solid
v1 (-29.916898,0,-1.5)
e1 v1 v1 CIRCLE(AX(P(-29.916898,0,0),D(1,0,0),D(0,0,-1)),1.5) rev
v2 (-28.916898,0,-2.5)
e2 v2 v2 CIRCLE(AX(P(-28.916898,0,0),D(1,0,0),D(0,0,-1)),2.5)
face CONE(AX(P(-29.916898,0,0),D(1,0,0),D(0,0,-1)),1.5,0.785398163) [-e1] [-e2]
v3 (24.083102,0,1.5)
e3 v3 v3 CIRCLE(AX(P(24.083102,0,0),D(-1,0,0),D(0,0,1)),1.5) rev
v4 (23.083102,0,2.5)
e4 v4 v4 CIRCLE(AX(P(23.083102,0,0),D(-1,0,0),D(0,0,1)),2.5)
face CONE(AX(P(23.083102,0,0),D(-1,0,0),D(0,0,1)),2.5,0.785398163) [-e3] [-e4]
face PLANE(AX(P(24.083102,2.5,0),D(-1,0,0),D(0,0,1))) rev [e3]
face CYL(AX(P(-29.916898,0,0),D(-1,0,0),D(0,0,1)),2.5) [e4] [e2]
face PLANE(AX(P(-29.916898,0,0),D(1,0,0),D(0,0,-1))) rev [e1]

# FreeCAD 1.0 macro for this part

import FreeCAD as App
import Part
import Sketcher
Q = App.Units.Quantity


def edges_at(feature, points):
    """Names of the edges that pass closest to the given points."""
    edges = feature.Shape.Edges
    near = lambda p: min(range(len(edges)), key=lambda i: edges[i].distToShape(Part.Vertex(*p))[0])
    return sorted({f"Edge{near(p) + 1}" for p in points})


def add_polygon(sketch, points):
    """Adds a closed chain of lines whose ends are joined by coincident constraints."""
    first, n = sketch.GeometryCount, len(points)
    for a, b in zip(points, points[1:] + points[:1]):
        sketch.addGeometry(Part.LineSegment(App.Vector(*a, 0), App.Vector(*b, 0)), False)
    for i in range(n):
        sketch.addConstraint(Sketcher.Constraint("Coincident", first + i, 2, first + (i + 1) % n, 1))

doc = App.newDocument("Part")
body = doc.addObject("PartDesign::Body", "Body")

sketch1 = doc.addObject("Sketcher::SketchObject", "Sketch")
body.addObject(sketch1)
sketch1.AttachmentSupport = (doc.XY_Plane, [""])
sketch1.MapMode = "FlatFace"
add_polygon(sketch1, [(-29.9, 2.5), (-29.9, 0), (24.1, 0), (24.1, 2.5)])
sketch1.addConstraint([
    Sketcher.Constraint("Vertical", 0),
    Sketcher.Constraint("Horizontal", 1),
    Sketcher.Constraint("Vertical", 2),
    Sketcher.Constraint("Horizontal", 3),
    Sketcher.Constraint("PointOnObject", 0, 2, -1),
    Sketcher.Constraint("DistanceX", 1, 1, 1, 2, Q("54 mm")),
    Sketcher.Constraint("DistanceY", 0, 2, 0, 1, Q("2.5 mm")),
    Sketcher.Constraint("DistanceX", 0, 2, -1, 1, Q("29.916898 mm")),
])
revolution = doc.addObject("PartDesign::Revolution", "Revolution")
body.addObject(revolution)
revolution.Profile = sketch1
revolution.ReferenceAxis = (sketch1, ["H_Axis"])
revolution.Angle = 360
doc.recompute()

chamfer = doc.addObject("PartDesign::Chamfer", "Chamfer")
body.addObject(chamfer)
chamfer.Base = (revolution, edges_at(revolution, [(24.083, -2.5, 0), (-29.917, -2.5, 0)]))
chamfer.Size = 1

doc.recompute()
